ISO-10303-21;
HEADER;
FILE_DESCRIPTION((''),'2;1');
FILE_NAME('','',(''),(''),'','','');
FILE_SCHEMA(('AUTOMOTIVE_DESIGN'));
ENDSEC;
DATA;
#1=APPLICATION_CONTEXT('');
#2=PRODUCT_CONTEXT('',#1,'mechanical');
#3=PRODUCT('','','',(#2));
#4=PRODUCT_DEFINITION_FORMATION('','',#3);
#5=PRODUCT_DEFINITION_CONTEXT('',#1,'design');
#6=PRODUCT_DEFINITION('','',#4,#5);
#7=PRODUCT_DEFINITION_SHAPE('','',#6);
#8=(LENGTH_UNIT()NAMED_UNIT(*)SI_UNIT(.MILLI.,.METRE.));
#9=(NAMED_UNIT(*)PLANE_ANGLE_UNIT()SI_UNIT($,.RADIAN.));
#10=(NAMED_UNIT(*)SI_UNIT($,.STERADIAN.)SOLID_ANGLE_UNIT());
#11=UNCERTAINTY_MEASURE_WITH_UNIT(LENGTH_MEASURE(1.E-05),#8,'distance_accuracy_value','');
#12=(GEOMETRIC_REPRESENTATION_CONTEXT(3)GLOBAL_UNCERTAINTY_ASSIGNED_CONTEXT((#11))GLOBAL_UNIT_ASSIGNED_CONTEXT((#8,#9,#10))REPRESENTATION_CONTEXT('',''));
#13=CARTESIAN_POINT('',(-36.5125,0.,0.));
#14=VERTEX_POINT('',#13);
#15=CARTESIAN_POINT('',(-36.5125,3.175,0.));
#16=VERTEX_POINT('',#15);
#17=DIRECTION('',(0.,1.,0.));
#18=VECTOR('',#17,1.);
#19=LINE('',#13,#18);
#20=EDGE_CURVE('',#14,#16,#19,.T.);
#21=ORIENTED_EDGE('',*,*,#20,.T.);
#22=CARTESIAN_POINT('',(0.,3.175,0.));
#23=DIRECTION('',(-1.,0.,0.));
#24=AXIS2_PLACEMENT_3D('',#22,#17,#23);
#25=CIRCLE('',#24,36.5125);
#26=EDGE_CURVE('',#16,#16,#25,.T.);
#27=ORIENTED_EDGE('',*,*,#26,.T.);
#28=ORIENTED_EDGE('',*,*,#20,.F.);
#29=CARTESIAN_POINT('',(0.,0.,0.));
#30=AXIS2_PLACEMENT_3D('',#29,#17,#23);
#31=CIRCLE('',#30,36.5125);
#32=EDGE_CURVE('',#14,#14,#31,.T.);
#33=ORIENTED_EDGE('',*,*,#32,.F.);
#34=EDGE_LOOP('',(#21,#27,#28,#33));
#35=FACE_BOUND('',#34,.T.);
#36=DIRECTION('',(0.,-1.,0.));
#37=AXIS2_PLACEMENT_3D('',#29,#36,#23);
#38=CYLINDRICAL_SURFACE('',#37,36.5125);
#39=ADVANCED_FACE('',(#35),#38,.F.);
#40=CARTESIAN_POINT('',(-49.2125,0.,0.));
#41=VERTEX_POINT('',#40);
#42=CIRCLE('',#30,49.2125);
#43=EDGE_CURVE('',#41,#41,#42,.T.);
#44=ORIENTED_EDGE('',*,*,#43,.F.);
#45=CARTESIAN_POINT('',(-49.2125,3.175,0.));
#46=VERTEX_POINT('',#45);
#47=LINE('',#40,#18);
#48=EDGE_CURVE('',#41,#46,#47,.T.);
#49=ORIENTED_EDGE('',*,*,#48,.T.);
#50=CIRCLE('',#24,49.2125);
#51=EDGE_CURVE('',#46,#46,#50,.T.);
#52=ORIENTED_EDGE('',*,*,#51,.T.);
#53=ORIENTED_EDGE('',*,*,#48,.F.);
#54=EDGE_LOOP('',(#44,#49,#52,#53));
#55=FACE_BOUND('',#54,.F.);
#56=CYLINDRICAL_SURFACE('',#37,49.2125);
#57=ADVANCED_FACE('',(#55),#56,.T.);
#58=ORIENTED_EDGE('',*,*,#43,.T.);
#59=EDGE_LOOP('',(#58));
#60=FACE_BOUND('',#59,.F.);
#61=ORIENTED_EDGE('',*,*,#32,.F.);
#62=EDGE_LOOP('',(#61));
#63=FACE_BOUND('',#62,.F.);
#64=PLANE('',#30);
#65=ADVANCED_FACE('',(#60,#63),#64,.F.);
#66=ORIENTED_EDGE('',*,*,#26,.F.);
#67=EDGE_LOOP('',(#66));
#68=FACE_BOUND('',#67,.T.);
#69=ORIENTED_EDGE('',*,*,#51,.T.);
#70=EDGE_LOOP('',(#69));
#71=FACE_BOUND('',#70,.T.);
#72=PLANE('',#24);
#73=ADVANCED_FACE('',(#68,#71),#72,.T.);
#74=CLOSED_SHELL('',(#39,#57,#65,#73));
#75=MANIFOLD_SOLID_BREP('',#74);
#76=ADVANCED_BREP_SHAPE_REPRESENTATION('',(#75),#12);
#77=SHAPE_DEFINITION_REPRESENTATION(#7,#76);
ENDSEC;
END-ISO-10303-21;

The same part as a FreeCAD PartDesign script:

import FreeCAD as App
import Part
import Sketcher
from FreeCAD import Vector
Q = App.Units.Quantity

doc = App.newDocument("Part")
body = doc.addObject("PartDesign::Body", "Body")

# Sketch on XZ plane
sketch1 = body.newObject("Sketcher::SketchObject", "Sketch")
sketch1.AttachmentSupport = (doc.getObject("XZ_Plane"), [""])
sketch1.MapMode = "FlatFace"
sketch1.addGeometry(Part.Circle(Vector(0, 0, 0), Vector(0, 0, 1), 49), False)
sketch1.addGeometry(Part.Circle(Vector(0, 0, 0), Vector(0, 0, 1), 37), False)
sketch1.addConstraint(Sketcher.Constraint("Coincident", 0, 3, -1, 1))
sketch1.addConstraint(Sketcher.Constraint("Coincident", 1, 3, -1, 1))
sketch1.addConstraint(Sketcher.Constraint("Diameter", 0, Q("3.875 in")))
sketch1.addConstraint(Sketcher.Constraint("Diameter", 1, Q("2.875 in")))
pad1 = body.newObject("PartDesign::Pad", "Pad")
pad1.Profile = sketch1
pad1.Length = Q("0.125 in")
pad1.Reversed = True

doc.recompute()
